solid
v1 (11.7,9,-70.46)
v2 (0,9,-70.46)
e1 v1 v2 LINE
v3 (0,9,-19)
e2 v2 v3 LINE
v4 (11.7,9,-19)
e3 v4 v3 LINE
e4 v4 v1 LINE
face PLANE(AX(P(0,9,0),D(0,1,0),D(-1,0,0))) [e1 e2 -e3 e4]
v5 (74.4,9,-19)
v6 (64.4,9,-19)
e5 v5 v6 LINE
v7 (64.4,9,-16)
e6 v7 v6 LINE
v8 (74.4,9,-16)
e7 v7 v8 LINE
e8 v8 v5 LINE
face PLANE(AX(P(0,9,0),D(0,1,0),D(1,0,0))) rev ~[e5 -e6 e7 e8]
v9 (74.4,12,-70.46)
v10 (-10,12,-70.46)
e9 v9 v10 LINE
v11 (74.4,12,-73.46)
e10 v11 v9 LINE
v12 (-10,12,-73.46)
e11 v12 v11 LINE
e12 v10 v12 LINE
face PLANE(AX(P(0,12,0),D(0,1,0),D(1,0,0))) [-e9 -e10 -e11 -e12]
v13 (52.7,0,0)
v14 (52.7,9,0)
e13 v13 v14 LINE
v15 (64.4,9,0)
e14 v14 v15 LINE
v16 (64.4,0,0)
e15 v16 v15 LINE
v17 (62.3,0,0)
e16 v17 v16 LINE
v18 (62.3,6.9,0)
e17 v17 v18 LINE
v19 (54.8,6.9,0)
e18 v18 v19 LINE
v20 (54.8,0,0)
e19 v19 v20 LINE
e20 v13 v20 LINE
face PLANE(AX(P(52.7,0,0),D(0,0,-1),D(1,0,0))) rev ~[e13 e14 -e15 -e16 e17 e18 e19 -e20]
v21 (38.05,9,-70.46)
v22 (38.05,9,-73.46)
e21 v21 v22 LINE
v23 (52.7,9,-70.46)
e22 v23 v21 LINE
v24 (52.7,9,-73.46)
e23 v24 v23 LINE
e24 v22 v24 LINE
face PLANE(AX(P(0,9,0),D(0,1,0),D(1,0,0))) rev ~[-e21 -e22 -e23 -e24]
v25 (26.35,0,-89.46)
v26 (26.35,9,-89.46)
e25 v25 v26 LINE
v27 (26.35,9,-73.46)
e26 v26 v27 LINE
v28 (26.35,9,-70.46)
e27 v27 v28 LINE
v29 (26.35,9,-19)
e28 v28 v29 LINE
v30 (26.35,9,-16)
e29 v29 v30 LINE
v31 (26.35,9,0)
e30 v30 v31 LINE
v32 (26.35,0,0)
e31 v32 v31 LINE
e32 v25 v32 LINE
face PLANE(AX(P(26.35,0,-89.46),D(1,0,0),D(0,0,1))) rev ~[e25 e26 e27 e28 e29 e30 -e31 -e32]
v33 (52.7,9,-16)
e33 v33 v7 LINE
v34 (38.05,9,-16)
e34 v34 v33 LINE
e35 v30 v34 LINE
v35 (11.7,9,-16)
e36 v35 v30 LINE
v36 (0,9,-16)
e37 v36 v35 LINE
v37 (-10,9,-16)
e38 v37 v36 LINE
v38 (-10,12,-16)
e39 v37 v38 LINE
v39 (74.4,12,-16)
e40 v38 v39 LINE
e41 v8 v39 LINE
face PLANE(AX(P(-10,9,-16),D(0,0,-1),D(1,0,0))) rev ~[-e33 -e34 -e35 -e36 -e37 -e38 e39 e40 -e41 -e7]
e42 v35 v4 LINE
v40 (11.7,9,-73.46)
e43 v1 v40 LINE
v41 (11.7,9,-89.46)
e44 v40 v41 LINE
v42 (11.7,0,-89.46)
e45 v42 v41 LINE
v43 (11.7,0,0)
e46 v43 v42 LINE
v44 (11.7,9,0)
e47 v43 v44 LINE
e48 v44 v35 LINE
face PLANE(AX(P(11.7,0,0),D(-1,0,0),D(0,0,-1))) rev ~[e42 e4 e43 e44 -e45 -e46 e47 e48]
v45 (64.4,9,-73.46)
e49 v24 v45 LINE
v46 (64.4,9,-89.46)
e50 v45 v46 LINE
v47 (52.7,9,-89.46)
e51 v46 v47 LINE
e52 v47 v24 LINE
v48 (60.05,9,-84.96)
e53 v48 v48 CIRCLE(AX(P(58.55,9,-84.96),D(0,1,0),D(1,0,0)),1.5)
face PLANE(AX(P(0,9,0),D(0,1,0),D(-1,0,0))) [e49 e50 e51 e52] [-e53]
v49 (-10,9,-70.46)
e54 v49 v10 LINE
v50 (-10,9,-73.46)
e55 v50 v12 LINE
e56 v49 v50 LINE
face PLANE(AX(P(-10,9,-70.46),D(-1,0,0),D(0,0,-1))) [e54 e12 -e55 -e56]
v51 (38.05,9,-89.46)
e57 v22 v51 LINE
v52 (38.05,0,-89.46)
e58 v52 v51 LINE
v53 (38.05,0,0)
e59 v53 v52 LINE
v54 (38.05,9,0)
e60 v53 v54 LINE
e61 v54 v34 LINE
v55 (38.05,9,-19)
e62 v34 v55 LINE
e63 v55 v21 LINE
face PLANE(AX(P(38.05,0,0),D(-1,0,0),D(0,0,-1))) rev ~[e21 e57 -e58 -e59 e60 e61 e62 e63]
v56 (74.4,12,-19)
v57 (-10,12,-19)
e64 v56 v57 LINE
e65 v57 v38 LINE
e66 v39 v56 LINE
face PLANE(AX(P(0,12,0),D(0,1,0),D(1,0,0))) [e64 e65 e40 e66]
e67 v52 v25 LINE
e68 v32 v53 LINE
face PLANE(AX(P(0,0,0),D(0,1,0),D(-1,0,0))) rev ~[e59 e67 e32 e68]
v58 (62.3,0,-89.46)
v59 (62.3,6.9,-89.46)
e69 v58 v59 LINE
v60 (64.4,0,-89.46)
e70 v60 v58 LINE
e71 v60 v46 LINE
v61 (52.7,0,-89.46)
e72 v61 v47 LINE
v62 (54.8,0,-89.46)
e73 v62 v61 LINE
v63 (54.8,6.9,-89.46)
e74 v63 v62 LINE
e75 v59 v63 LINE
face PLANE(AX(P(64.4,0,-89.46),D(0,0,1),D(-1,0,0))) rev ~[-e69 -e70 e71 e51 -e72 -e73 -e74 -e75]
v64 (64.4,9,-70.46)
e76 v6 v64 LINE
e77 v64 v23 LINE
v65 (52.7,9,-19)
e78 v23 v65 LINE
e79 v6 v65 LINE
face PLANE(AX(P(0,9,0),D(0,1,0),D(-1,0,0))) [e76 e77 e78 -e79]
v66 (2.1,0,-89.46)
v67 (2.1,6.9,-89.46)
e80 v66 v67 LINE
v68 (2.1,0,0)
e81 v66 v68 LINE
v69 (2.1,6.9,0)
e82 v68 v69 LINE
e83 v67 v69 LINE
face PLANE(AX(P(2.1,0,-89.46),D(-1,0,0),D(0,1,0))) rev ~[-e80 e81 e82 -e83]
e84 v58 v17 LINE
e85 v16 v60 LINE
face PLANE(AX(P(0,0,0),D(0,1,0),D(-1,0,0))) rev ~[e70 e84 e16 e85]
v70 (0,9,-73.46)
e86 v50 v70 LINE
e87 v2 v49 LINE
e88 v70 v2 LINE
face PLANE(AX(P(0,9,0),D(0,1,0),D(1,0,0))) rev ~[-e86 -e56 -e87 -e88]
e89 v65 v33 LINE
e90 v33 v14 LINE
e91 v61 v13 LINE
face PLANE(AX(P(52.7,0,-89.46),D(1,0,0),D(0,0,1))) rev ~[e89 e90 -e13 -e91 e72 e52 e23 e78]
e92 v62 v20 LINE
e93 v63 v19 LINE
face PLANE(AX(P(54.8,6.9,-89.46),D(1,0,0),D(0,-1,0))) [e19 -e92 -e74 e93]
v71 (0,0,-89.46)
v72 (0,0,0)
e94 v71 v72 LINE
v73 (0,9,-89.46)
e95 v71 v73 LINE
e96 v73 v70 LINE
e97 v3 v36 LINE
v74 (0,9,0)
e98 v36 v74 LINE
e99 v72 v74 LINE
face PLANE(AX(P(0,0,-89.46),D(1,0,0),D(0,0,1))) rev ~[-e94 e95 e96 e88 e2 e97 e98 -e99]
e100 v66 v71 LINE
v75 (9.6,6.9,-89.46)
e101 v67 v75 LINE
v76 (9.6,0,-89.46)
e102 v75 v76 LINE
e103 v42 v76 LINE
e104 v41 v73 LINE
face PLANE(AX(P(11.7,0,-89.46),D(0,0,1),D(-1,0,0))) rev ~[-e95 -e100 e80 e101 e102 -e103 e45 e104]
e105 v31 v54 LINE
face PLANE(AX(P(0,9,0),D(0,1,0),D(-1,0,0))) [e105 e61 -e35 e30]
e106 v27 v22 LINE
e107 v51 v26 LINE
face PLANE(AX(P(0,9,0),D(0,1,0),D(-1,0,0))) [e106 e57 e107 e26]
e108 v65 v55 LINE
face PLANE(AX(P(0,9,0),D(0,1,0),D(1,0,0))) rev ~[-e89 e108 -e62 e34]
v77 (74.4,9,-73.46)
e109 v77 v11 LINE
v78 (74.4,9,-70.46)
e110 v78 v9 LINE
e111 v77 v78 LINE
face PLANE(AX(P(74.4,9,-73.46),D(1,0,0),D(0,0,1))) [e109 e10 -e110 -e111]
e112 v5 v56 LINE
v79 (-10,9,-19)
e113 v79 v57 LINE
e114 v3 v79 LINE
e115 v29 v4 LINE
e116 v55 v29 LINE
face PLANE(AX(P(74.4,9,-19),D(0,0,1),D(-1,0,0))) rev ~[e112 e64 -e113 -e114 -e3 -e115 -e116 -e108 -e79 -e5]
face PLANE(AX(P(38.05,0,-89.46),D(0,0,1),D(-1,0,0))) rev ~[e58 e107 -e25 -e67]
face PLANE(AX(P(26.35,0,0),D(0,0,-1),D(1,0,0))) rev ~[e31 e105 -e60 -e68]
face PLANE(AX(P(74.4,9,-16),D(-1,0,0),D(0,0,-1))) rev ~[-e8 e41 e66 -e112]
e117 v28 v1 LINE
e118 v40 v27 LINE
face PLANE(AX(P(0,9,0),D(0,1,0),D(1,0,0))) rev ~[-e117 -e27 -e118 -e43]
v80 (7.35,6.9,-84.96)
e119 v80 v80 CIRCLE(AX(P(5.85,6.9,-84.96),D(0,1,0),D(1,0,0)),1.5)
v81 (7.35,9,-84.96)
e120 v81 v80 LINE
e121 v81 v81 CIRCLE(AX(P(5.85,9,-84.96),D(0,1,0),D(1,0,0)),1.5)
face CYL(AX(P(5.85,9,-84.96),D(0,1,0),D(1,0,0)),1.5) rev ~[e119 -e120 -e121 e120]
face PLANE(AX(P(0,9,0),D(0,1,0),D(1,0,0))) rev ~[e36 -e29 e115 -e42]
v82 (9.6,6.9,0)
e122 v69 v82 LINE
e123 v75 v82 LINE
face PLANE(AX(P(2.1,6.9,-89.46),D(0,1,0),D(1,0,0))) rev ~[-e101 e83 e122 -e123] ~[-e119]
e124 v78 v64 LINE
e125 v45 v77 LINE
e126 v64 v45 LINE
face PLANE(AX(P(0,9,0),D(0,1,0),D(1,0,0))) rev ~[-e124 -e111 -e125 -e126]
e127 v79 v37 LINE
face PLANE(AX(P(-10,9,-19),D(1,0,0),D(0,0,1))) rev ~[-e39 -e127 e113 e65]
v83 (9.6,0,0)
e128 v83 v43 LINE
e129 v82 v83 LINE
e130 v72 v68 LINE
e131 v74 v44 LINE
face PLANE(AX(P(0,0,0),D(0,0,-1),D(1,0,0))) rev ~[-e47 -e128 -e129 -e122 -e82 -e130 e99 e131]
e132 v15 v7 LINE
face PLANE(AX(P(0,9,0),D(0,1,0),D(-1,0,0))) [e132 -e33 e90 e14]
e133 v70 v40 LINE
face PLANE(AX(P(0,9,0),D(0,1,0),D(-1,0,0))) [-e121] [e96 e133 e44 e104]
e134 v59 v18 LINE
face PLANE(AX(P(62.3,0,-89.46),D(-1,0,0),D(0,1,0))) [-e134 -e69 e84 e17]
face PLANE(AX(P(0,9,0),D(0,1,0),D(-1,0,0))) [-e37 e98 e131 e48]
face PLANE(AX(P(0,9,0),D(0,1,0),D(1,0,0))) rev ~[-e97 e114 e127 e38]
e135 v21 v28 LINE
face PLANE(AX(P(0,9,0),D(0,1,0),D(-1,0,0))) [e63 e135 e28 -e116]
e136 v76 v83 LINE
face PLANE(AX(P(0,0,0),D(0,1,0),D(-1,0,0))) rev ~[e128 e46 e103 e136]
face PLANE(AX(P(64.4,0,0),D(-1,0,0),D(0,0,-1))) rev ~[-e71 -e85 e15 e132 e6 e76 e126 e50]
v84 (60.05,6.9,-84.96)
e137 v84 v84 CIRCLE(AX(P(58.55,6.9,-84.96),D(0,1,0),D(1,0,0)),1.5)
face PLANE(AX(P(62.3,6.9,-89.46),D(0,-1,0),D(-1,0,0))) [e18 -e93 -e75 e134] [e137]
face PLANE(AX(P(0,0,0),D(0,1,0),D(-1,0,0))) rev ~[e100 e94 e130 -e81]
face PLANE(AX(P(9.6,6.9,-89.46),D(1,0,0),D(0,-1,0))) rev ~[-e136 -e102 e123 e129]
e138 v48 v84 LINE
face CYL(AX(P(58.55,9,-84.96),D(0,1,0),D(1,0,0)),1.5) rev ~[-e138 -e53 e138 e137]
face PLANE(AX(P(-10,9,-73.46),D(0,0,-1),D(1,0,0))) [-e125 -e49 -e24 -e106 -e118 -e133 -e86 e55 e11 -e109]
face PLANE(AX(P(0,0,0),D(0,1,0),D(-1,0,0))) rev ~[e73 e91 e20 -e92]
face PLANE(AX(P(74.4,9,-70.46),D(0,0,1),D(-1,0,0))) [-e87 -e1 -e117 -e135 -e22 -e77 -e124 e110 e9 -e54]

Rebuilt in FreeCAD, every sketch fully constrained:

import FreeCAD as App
import Part
import Sketcher

doc = App.newDocument("Part")
body = doc.addObject("PartDesign::Body", "Body")
body.AllowCompound = True

# Sketch on XZ plane
sketch1 = doc.addObject("Sketcher::SketchObject", "Sketch")
body.addObject(sketch1)
sketch1.AttachmentSupport = (doc.XZ_Plane, [""])
sketch1.MapMode = "FlatFace"
sketch1.addGeometry([
    Part.LineSegment(App.Vector(0, -89.46, 0), App.Vector(0, 0, 0)),  # 0
    Part.LineSegment(App.Vector(0, 0, 0), App.Vector(11.7, 0, 0)),  # 1
    Part.LineSegment(App.Vector(11.7, 0, 0), App.Vector(11.7, -89.46, 0)),  # 2
    Part.LineSegment(App.Vector(11.7, -89.46, 0), App.Vector(0, -89.46, 0)),  # 3
    Part.LineSegment(App.Vector(26.35, -89.46, 0), App.Vector(26.35, 0, 0)),  # 4
    Part.LineSegment(App.Vector(26.35, 0, 0), App.Vector(38.05, 0, 0)),  # 5
    Part.LineSegment(App.Vector(38.05, 0, 0), App.Vector(38.05, -89.46, 0)),  # 6
    Part.LineSegment(App.Vector(38.05, -89.46, 0), App.Vector(26.35, -89.46, 0)),  # 7
    Part.LineSegment(App.Vector(52.7, -89.46, 0), App.Vector(52.7, 0, 0)),  # 8
    Part.LineSegment(App.Vector(52.7, 0, 0), App.Vector(64.4, 0, 0)),  # 9
    Part.LineSegment(App.Vector(64.4, 0, 0), App.Vector(64.4, -89.46, 0)),  # 10
    Part.LineSegment(App.Vector(64.4, -89.46, 0), App.Vector(52.7, -89.46, 0)),  # 11
], False)
sketch1.addConstraint([
    Sketcher.Constraint("Coincident", 0, 2, 1, 1),
    Sketcher.Constraint("Coincident", 1, 2, 2, 1),
    Sketcher.Constraint("Coincident", 2, 2, 3, 1),
    Sketcher.Constraint("Coincident", 3, 2, 0, 1),
    Sketcher.Constraint("Coincident", 4, 2, 5, 1),
    Sketcher.Constraint("Coincident", 5, 2, 6, 1),
    Sketcher.Constraint("Coincident", 6, 2, 7, 1),
    Sketcher.Constraint("Coincident", 7, 2, 4, 1),
    Sketcher.Constraint("Coincident", 8, 2, 9, 1),
    Sketcher.Constraint("Coincident", 9, 2, 10, 1),
    Sketcher.Constraint("Coincident", 10, 2, 11, 1),
    Sketcher.Constraint("Coincident", 11, 2, 8, 1),
    Sketcher.Constraint("Vertical", 0),
    Sketcher.Constraint("Horizontal", 1),
    Sketcher.Constraint("Vertical", 2),
    Sketcher.Constraint("Horizontal", 3),
    Sketcher.Constraint("Vertical", 4),
    Sketcher.Constraint("Horizontal", 5),
    Sketcher.Constraint("Vertical", 6),
    Sketcher.Constraint("Horizontal", 7),
    Sketcher.Constraint("Vertical", 8),
    Sketcher.Constraint("Horizontal", 9),
    Sketcher.Constraint("Vertical", 10),
    Sketcher.Constraint("Horizontal", 11),
    Sketcher.Constraint("Coincident", 0, 2, -1, 1),
    Sketcher.Constraint("PointOnObject", 4, 2, -1),
    Sketcher.Constraint("PointOnObject", 8, 2, -1),
    Sketcher.Constraint("Horizontal", 3, 2, 6, 2),
    Sketcher.Constraint("Horizontal", 7, 2, 10, 2),
    Sketcher.Constraint("Equal", 3, 5),
    Sketcher.Constraint("Equal", 7, 9),
    Sketcher.Constraint("DistanceX", 1, 1, 1, 2, 11.7),
    Sketcher.Constraint("DistanceY", 0, 1, 0, 2, 89.46),
    Sketcher.Constraint("DistanceX", -1, 1, 9, 2, 64.4),
    Sketcher.Constraint("DistanceX", 1, 2, 4, 2, 14.65),
])
pad1 = doc.addObject("PartDesign::Pad", "Pad")
body.addObject(pad1)
pad1.Profile = sketch1
pad1.Length = 9
pad1.Reversed = True

# Sketch on XZ plane
sketch2 = doc.addObject("Sketcher::SketchObject", "Sketch001")
body.addObject(sketch2)
sketch2.AttachmentSupport = (doc.XZ_Plane, [""])
sketch2.MapMode = "FlatFace"
sketch2.AttachmentOffset = App.Placement(App.Vector(0, 0, -9), App.Rotation())
sketch2.addGeometry([
    Part.Circle(App.Vector(5.85, -84.96, 0), App.Vector(0, 0, 1), 1.5),
    Part.Circle(App.Vector(58.55, -84.96, 0), App.Vector(0, 0, 1), 1.5),
], False)
sketch2.addConstraint([
    Sketcher.Constraint("Equal", 0, 1),
    Sketcher.Constraint("Horizontal", 0, 3, 1, 3),
    Sketcher.Constraint("Diameter", 0, 3.0),
    Sketcher.Constraint("DistanceX", 0, 3, 1, 3, 52.7),
    Sketcher.Constraint("DistanceX", -1, 1, 0, 3, 5.85),
    Sketcher.Constraint("DistanceY", 0, 3, -1, 1, 84.96),
])
pocket1 = doc.addObject("PartDesign::Pocket", "Pocket")
body.addObject(pocket1)
pocket1.Profile = sketch2
pocket1.Length = 8
pocket1.Reversed = True

# Sketch on XY plane
sketch3 = doc.addObject("Sketcher::SketchObject", "Sketch002")
body.addObject(sketch3)
sketch3.AttachmentSupport = (doc.XY_Plane, [""])
sketch3.MapMode = "FlatFace"
sketch3.AttachmentOffset = App.Placement(App.Vector(0, 0, -89.46), App.Rotation())
sketch3.addGeometry([
    Part.LineSegment(App.Vector(9.6, 6.9, 0), App.Vector(9.6, 0, 0)),  # 0
    Part.LineSegment(App.Vector(9.6, 0, 0), App.Vector(2.1, 0, 0)),  # 1
    Part.LineSegment(App.Vector(2.1, 0, 0), App.Vector(2.1, 6.9, 0)),  # 2
    Part.LineSegment(App.Vector(2.1, 6.9, 0), App.Vector(9.6, 6.9, 0)),  # 3
    Part.LineSegment(App.Vector(62.3, 0, 0), App.Vector(54.8, 0, 0)),  # 4
    Part.LineSegment(App.Vector(54.8, 0, 0), App.Vector(54.8, 6.9, 0)),  # 5
    Part.LineSegment(App.Vector(54.8, 6.9, 0), App.Vector(62.3, 6.9, 0)),  # 6
    Part.LineSegment(App.Vector(62.3, 6.9, 0), App.Vector(62.3, 0, 0)),  # 7
], False)
sketch3.addConstraint([
    Sketcher.Constraint("Coincident", 0, 2, 1, 1),
    Sketcher.Constraint("Coincident", 1, 2, 2, 1),
    Sketcher.Constraint("Coincident", 2, 2, 3, 1),
    Sketcher.Constraint("Coincident", 3, 2, 0, 1),
    Sketcher.Constraint("Coincident", 4, 2, 5, 1),
    Sketcher.Constraint("Coincident", 5, 2, 6, 1),
    Sketcher.Constraint("Coincident", 6, 2, 7, 1),
    Sketcher.Constraint("Coincident", 7, 2, 4, 1),
    Sketcher.Constraint("Vertical", 0),
    Sketcher.Constraint("Horizontal", 1),
    Sketcher.Constraint("Vertical", 2),
    Sketcher.Constraint("Horizontal", 3),
    Sketcher.Constraint("Horizontal", 4),
    Sketcher.Constraint("Vertical", 5),
    Sketcher.Constraint("Horizontal", 6),
    Sketcher.Constraint("Vertical", 7),
    Sketcher.Constraint("PointOnObject", 0, 2, -1),
    Sketcher.Constraint("PointOnObject", 4, 2, -1),
    Sketcher.Constraint("Horizontal", 3, 2, 5, 2),
    Sketcher.Constraint("Equal", 3, 4),
    Sketcher.Constraint("DistanceX", 1, 2, 1, 1, 7.5),
    Sketcher.Constraint("DistanceY", 0, 2, 0, 1, 6.9),
    Sketcher.Constraint("DistanceX", -1, 1, 1, 2, 2.1),
    Sketcher.Constraint("DistanceX", -1, 1, 4, 2, 54.8),
])
pocket2 = doc.addObject("PartDesign::Pocket", "Pocket001")
body.addObject(pocket2)
pocket2.Profile = sketch3
pocket2.Type = "ThroughAll"
pocket2.Reversed = True

# Sketch on XZ plane
sketch4 = doc.addObject("Sketcher::SketchObject", "Sketch003")
body.addObject(sketch4)
sketch4.AttachmentSupport = (doc.XZ_Plane, [""])
sketch4.MapMode = "FlatFace"
sketch4.AttachmentOffset = App.Placement(App.Vector(0, 0, -9), App.Rotation())
sketch4.addGeometry([
    Part.LineSegment(App.Vector(-10, -19, 0), App.Vector(-10, -16, 0)),  # 0
    Part.LineSegment(App.Vector(-10, -16, 0), App.Vector(74.4, -16, 0)),  # 1
    Part.LineSegment(App.Vector(74.4, -16, 0), App.Vector(74.4, -19, 0)),  # 2
    Part.LineSegment(App.Vector(74.4, -19, 0), App.Vector(-10, -19, 0)),  # 3
    Part.LineSegment(App.Vector(74.4, -73.46, 0), App.Vector(-10, -73.46, 0)),  # 4
    Part.LineSegment(App.Vector(-10, -73.46, 0), App.Vector(-10, -70.46, 0)),  # 5
    Part.LineSegment(App.Vector(-10, -70.46, 0), App.Vector(74.4, -70.46, 0)),  # 6
    Part.LineSegment(App.Vector(74.4, -70.46, 0), App.Vector(74.4, -73.46, 0)),  # 7
], False)
sketch4.addConstraint([
    Sketcher.Constraint("Coincident", 0, 2, 1, 1),
    Sketcher.Constraint("Coincident", 1, 2, 2, 1),
    Sketcher.Constraint("Coincident", 2, 2, 3, 1),
    Sketcher.Constraint("Coincident", 3, 2, 0, 1),
    Sketcher.Constraint("Coincident", 4, 2, 5, 1),
    Sketcher.Constraint("Coincident", 5, 2, 6, 1),
    Sketcher.Constraint("Coincident", 6, 2, 7, 1),
    Sketcher.Constraint("Coincident", 7, 2, 4, 1),
    Sketcher.Constraint("Vertical", 0),
    Sketcher.Constraint("Horizontal", 1),
    Sketcher.Constraint("Vertical", 2),
    Sketcher.Constraint("Horizontal", 3),
    Sketcher.Constraint("Horizontal", 4),
    Sketcher.Constraint("Vertical", 5),
    Sketcher.Constraint("Horizontal", 6),
    Sketcher.Constraint("Vertical", 7),
    Sketcher.Constraint("Vertical", 3, 2, 4, 2),
    Sketcher.Constraint("Vertical", 2, 2, 6, 2),
    Sketcher.Constraint("Equal", 2, 5),
    Sketcher.Constraint("DistanceY", 0, 1, 0, 2, 3.0),
    Sketcher.Constraint("DistanceX", 0, 2, -1, 1, 10.0),
    Sketcher.Constraint("DistanceY", 0, 2, -1, 1, 16.0),
    Sketcher.Constraint("DistanceX", 1, 1, 1, 2, 84.4),
    Sketcher.Constraint("DistanceY", 4, 2, -1, 1, 73.46),
])
pad2 = doc.addObject("PartDesign::Pad", "Pad001")
body.addObject(pad2)
pad2.Profile = sketch4
pad2.Length = 3
pad2.Reversed = True

doc.recompute()
